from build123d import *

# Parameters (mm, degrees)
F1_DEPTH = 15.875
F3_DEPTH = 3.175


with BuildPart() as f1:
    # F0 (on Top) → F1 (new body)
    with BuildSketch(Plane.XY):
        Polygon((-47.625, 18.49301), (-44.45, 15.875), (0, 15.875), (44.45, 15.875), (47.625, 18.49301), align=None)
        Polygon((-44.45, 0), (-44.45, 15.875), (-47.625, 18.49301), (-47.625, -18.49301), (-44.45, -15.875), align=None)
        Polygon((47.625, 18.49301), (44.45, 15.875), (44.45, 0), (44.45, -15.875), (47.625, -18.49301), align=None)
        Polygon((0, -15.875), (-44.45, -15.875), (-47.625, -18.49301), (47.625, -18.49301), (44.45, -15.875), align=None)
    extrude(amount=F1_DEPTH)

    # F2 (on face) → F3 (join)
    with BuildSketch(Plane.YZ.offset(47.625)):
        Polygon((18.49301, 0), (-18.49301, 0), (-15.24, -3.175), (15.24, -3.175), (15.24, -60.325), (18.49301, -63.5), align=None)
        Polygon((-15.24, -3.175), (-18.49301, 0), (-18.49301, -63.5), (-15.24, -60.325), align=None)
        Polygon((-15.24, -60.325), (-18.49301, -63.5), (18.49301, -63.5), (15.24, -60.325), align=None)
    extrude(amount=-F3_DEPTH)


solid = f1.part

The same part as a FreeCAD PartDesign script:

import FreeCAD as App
import Part
import Sketcher
Q = App.Units.Quantity


def add_polygon(sketch, points):
    """Adds a closed chain of lines whose ends are joined by coincident constraints."""
    first, n = sketch.GeometryCount, len(points)
    for a, b in zip(points, points[1:] + points[:1]):
        sketch.addGeometry(Part.LineSegment(App.Vector(*a, 0), App.Vector(*b, 0)), False)
    for i in range(n):
        sketch.addConstraint(Sketcher.Constraint("Coincident", first + i, 2, first + (i + 1) % n, 1))

doc = App.newDocument("Part")
params = doc.addObject("Spreadsheet::Sheet", "Params")
for row, (alias, value) in enumerate([
    ("sketch1_width", "3.5 in"),
    ("sketch1_width2", "3.75 in"),
    ("sketch1_height", "1.25 in"),
    ("pad1_length", "0.625 in"),
    ("sketch2_width", "1.2 in"),
    ("sketch2_height", "2.5 in"),
    ("sketch2_height2", "2.25 in"),
    ("pad2_length", "0.125 in"),
], start=1):
    params.set(f"A{row}", alias)
    params.set(f"B{row}", "=" + value)
    params.setAlias(f"B{row}", alias)

body = doc.addObject("PartDesign::Body", "Body")

# Sketch on XY plane
sketch1 = body.newObject("Sketcher::SketchObject", "Sketch")
sketch1.AttachmentSupport = (doc.getObject("XY_Plane"), [""])
sketch1.MapMode = "FlatFace"
add_polygon(sketch1, [(48, -18), (48, 18), (-48, 18), (-48, -18)])  # lines 0-3
add_polygon(sketch1, [(-44, 16), (44, 16), (44, -16), (-44, -16)])  # lines 4-7
sketch1.addConstraint(Sketcher.Constraint("Vertical", 0))
sketch1.addConstraint(Sketcher.Constraint("Horizontal", 1))
sketch1.addConstraint(Sketcher.Constraint("Vertical", 2))
sketch1.addConstraint(Sketcher.Constraint("Horizontal", 3))
sketch1.addConstraint(Sketcher.Constraint("Horizontal", 4))
sketch1.addConstraint(Sketcher.Constraint("Vertical", 5))
sketch1.addConstraint(Sketcher.Constraint("Horizontal", 6))
sketch1.addConstraint(Sketcher.Constraint("Vertical", 7))
sketch1.addConstraint(Sketcher.Constraint("Symmetric", 0, 2, 2, 2, -1, 1))
sketch1.addConstraint(Sketcher.Constraint("Symmetric", 4, 2, 6, 2, -1, 1))
sketch1.addConstraint(Sketcher.Constraint("DistanceX", 4, 1, 4, 2, Q("3.5 in")))
sketch1.addConstraint(Sketcher.Constraint("DistanceX", 1, 2, 1, 1, Q("3.75 in")))
sketch1.addConstraint(Sketcher.Constraint("DistanceY", 5, 2, 5, 1, Q("1.25 in")))
sketch1.addConstraint(Sketcher.Constraint("DistanceY", 0, 1, 0, 2, 36.98602))
sketch1.setExpression("Constraints[18]", "Params.sketch1_width")
sketch1.setExpression("Constraints[19]", "Params.sketch1_width2")
sketch1.setExpression("Constraints[20]", "Params.sketch1_height")
pad1 = body.newObject("PartDesign::Pad", "Pad")
pad1.Profile = sketch1
pad1.setExpression("Length", "Params.pad1_length")

# Sketch on YZ plane
sketch2 = body.newObject("Sketcher::SketchObject", "Sketch001")
sketch2.AttachmentSupport = (doc.getObject("YZ_Plane"), [""])
sketch2.MapMode = "FlatFace"
sketch2.AttachmentOffset = App.Placement(App.Vector(0, 0, 1.875 * 25.4), App.Rotation())
add_polygon(sketch2, [(18, 0), (-18, 0), (-18, -64), (18, -64)])  # lines 0-3
add_polygon(sketch2, [(-15, -60), (-15, -3), (15, -3), (15, -60)])  # lines 4-7
sketch2.addConstraint(Sketcher.Constraint("Horizontal", 0))
sketch2.addConstraint(Sketcher.Constraint("Vertical", 1))
sketch2.addConstraint(Sketcher.Constraint("Horizontal", 2))
sketch2.addConstraint(Sketcher.Constraint("Vertical", 3))
sketch2.addConstraint(Sketcher.Constraint("Vertical", 4))
sketch2.addConstraint(Sketcher.Constraint("Horizontal", 5))
sketch2.addConstraint(Sketcher.Constraint("Vertical", 6))
sketch2.addConstraint(Sketcher.Constraint("Horizontal", 7))
sketch2.addConstraint(Sketcher.Constraint("Symmetric", 0, 2, 3, 2, -1, 1))
sketch2.addConstraint(Sketcher.Constraint("DistanceX", 5, 1, 5, 2, Q("1.2 in")))
sketch2.addConstraint(Sketcher.Constraint("DistanceY", 1, 2, 1, 1, Q("2.5 in")))
sketch2.addConstraint(Sketcher.Constraint("DistanceY", 4, 1, 4, 2, Q("2.25 in")))
sketch2.addConstraint(Sketcher.Constraint("DistanceX", 4, 2, -1, 1, Q("0.6 in")))
sketch2.addConstraint(Sketcher.Constraint("DistanceY", 4, 2, -1, 1, Q("0.125 in")))
sketch2.addConstraint(Sketcher.Constraint("DistanceX", 0, 2, 0, 1, 36.98602))
sketch2.setExpression("Constraints[17]", "Params.sketch2_width")
sketch2.setExpression("Constraints[18]", "Params.sketch2_height")
sketch2.setExpression("Constraints[19]", "Params.sketch2_height2")
pad2 = body.newObject("PartDesign::Pad", "Pad001")
pad2.Profile = sketch2
pad2.setExpression("Length", "Params.pad2_length")
pad2.Reversed = True

doc.recompute()
